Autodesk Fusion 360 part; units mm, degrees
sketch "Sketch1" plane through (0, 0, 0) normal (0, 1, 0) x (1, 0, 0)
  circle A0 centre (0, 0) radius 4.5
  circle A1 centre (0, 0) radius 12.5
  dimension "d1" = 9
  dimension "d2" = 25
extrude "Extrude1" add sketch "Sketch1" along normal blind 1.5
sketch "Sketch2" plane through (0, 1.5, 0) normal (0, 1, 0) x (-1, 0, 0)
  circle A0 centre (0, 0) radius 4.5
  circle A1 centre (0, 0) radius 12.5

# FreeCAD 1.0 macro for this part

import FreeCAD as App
import Part
import Sketcher
from FreeCAD import Vector
Q = App.Units.Quantity

doc = App.newDocument("Part")
body = doc.addObject("PartDesign::Body", "Body")

sketch1 = body.newObject("Sketcher::SketchObject", "Sketch")
sketch1.AttachmentSupport = (doc.getObject("XZ_Plane"), [""])
sketch1.MapMode = "FlatFace"
sketch1.addGeometry([
    Part.Circle(Vector(0, 0, 0), Vector(0, 0, 1), 12.5),
    Part.Circle(Vector(0, 0, 0), Vector(0, 0, 1), 4.5),
], False)
sketch1.addConstraint([
    Sketcher.Constraint("Coincident", 0, 3, -1, 1),
    Sketcher.Constraint("Coincident", 1, 3, -1, 1),
    Sketcher.Constraint("Diameter", 0, Q("25 mm")),
    Sketcher.Constraint("Diameter", 1, Q("9 mm")),
])
pad1 = body.newObject("PartDesign::Pad", "Pad")
pad1.Profile = sketch1
pad1.Length = 1.5
pad1.Reversed = True

doc.recompute()
